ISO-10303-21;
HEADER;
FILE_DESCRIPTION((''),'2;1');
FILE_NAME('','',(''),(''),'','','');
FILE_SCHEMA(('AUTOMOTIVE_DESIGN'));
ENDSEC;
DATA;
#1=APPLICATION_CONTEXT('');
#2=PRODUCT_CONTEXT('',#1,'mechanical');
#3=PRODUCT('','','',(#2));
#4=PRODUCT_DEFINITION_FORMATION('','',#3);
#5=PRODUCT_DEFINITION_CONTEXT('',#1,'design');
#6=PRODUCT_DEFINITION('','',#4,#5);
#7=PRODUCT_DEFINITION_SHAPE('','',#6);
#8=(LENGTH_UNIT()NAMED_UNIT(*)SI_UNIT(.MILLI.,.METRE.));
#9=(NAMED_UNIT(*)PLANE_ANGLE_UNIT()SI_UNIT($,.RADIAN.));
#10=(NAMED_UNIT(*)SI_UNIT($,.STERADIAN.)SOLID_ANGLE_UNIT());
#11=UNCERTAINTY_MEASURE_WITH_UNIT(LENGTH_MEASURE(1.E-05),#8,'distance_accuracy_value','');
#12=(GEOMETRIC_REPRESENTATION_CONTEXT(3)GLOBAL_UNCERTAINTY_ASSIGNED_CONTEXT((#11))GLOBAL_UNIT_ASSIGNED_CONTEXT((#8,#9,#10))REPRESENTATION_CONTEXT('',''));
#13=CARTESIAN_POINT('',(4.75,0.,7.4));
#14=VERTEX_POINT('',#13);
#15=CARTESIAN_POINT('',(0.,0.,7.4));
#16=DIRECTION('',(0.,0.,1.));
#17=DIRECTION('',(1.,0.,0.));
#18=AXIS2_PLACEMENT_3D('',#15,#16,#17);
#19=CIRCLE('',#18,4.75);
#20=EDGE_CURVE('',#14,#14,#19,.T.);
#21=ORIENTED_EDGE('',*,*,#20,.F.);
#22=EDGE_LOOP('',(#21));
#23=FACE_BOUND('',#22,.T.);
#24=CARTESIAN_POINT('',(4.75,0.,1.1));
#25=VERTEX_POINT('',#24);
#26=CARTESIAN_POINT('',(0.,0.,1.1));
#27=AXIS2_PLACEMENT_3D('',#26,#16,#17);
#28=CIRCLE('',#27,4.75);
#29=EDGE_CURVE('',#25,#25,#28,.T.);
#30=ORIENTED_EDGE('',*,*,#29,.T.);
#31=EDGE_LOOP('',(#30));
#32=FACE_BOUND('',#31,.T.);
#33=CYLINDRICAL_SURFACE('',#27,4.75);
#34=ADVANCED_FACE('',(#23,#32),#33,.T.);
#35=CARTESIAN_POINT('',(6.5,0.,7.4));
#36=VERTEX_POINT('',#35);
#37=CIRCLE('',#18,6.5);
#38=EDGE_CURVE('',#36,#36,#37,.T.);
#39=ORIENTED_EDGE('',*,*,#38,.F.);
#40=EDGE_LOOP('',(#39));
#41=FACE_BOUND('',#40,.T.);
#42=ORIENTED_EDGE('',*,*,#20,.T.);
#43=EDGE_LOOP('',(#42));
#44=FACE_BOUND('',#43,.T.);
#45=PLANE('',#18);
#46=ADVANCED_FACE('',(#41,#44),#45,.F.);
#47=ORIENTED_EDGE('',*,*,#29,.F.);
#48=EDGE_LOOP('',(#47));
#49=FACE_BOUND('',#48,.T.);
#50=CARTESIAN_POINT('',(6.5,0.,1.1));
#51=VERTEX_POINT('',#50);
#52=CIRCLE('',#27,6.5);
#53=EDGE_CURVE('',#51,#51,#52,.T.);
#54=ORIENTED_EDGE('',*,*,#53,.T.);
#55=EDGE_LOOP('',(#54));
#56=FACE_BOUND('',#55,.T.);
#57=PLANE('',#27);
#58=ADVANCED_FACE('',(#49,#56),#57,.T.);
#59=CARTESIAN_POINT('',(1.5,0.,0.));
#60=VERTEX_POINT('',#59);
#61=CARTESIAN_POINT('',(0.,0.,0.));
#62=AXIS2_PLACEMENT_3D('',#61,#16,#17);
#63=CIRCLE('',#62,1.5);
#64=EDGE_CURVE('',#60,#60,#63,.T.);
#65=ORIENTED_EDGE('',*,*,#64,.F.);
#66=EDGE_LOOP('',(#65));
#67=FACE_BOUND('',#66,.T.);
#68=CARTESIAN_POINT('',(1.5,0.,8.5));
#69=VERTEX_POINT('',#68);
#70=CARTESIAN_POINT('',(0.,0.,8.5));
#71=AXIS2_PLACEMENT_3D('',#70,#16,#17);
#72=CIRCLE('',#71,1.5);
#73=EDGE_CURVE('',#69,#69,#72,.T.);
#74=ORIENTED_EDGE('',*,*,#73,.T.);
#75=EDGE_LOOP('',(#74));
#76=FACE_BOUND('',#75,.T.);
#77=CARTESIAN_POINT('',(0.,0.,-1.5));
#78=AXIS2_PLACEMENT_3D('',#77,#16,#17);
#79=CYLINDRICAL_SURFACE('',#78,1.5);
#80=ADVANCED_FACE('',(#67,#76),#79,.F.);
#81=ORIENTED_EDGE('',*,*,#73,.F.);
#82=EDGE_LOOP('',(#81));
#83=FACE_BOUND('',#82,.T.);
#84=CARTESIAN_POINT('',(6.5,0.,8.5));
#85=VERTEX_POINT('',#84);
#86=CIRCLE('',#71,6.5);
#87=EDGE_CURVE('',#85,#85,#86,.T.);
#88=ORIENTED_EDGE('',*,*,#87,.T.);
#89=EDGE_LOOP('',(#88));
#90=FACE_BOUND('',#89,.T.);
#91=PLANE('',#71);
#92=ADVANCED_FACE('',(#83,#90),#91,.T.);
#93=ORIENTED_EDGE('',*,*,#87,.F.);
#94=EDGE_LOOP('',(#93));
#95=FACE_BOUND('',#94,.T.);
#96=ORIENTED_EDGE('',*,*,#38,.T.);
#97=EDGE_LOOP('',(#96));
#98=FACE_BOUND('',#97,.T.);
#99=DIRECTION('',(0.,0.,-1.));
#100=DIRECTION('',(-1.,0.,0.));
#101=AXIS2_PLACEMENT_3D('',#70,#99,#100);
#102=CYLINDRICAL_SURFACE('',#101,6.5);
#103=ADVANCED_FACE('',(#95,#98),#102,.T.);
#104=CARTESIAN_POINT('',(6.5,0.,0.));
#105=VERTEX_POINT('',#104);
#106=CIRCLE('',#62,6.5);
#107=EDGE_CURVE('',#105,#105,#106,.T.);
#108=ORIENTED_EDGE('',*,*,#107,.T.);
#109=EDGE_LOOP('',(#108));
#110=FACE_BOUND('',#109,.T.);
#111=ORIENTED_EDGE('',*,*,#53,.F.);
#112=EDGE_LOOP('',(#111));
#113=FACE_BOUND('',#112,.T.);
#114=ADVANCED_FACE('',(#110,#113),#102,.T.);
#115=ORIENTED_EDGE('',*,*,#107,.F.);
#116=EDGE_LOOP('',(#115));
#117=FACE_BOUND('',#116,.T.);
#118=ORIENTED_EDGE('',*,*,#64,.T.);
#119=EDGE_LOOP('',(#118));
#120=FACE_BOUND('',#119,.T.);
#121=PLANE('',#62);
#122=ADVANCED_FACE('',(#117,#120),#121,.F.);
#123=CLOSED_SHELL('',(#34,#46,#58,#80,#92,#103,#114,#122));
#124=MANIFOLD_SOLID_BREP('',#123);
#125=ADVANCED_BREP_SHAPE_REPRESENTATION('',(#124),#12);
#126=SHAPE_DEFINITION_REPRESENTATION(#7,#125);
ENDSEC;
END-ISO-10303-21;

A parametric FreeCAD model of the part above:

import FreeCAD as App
import Part
import Sketcher

V = App.Vector
Q = App.Units.Quantity

doc = App.newDocument("Part")
body = doc.addObject("PartDesign::Body", "Body")

sketch1 = body.newObject("Sketcher::SketchObject", "Sketch")
sketch1.AttachmentSupport = (doc.getObject("XY_Plane"), [""])
sketch1.MapMode = "FlatFace"
sketch1.addGeometry(Part.Circle(V(0, 0, 0), V(0, 0, 1), 6), False)
sketch1.addConstraint(Sketcher.Constraint("Coincident", 0, 3, -1, 1))
sketch1.addConstraint(Sketcher.Constraint("Diameter", 0, Q("13 mm")))
pad1 = body.newObject("PartDesign::Pad", "Pad")
pad1.Profile = sketch1
pad1.Length = 8.5

sketch2 = body.newObject("Sketcher::SketchObject", "Sketch001")
sketch2.AttachmentSupport = (doc.getObject("XY_Plane"), [""])
sketch2.MapMode = "FlatFace"
sketch2.AttachmentOffset = App.Placement(V(0, 0, 8.5), App.Rotation())
sketch2.addGeometry(Part.Circle(V(0, 0, 0), V(0, 0, 1), 1.5), False)
sketch2.addConstraint(Sketcher.Constraint("Coincident", 0, 3, -1, 1))
sketch2.addConstraint(Sketcher.Constraint("Diameter", 0, Q("3 mm")))
pocket1 = body.newObject("PartDesign::Pocket", "Pocket")
pocket1.Profile = sketch2
pocket1.Length = 10

sketch3 = body.newObject("Sketcher::SketchObject", "Sketch002")
sketch3.AttachmentSupport = (doc.getObject("XY_Plane"), [""])
sketch3.MapMode = "FlatFace"
sketch3.AttachmentOffset = App.Placement(V(0, 0, 7.4), App.Rotation())
sketch3.addGeometry(Part.Circle(V(0, 0, 0), V(0, 0, 1), 9), False)
sketch3.addGeometry(Part.Circle(V(0, 0, 0), V(0, 0, 1), 4.8), False)
sketch3.addConstraint(Sketcher.Constraint("Coincident", 0, 3, -1, 1))
sketch3.addConstraint(Sketcher.Constraint("Coincident", 1, 3, -1, 1))
sketch3.addConstraint(Sketcher.Constraint("Diameter", 0, Q("18 mm")))
sketch3.addConstraint(Sketcher.Constraint("Diameter", 1, Q("9.5 mm")))
pocket2 = body.newObject("PartDesign::Pocket", "Pocket001")
pocket2.Profile = sketch3
pocket2.Length = 6.3

doc.recompute()
